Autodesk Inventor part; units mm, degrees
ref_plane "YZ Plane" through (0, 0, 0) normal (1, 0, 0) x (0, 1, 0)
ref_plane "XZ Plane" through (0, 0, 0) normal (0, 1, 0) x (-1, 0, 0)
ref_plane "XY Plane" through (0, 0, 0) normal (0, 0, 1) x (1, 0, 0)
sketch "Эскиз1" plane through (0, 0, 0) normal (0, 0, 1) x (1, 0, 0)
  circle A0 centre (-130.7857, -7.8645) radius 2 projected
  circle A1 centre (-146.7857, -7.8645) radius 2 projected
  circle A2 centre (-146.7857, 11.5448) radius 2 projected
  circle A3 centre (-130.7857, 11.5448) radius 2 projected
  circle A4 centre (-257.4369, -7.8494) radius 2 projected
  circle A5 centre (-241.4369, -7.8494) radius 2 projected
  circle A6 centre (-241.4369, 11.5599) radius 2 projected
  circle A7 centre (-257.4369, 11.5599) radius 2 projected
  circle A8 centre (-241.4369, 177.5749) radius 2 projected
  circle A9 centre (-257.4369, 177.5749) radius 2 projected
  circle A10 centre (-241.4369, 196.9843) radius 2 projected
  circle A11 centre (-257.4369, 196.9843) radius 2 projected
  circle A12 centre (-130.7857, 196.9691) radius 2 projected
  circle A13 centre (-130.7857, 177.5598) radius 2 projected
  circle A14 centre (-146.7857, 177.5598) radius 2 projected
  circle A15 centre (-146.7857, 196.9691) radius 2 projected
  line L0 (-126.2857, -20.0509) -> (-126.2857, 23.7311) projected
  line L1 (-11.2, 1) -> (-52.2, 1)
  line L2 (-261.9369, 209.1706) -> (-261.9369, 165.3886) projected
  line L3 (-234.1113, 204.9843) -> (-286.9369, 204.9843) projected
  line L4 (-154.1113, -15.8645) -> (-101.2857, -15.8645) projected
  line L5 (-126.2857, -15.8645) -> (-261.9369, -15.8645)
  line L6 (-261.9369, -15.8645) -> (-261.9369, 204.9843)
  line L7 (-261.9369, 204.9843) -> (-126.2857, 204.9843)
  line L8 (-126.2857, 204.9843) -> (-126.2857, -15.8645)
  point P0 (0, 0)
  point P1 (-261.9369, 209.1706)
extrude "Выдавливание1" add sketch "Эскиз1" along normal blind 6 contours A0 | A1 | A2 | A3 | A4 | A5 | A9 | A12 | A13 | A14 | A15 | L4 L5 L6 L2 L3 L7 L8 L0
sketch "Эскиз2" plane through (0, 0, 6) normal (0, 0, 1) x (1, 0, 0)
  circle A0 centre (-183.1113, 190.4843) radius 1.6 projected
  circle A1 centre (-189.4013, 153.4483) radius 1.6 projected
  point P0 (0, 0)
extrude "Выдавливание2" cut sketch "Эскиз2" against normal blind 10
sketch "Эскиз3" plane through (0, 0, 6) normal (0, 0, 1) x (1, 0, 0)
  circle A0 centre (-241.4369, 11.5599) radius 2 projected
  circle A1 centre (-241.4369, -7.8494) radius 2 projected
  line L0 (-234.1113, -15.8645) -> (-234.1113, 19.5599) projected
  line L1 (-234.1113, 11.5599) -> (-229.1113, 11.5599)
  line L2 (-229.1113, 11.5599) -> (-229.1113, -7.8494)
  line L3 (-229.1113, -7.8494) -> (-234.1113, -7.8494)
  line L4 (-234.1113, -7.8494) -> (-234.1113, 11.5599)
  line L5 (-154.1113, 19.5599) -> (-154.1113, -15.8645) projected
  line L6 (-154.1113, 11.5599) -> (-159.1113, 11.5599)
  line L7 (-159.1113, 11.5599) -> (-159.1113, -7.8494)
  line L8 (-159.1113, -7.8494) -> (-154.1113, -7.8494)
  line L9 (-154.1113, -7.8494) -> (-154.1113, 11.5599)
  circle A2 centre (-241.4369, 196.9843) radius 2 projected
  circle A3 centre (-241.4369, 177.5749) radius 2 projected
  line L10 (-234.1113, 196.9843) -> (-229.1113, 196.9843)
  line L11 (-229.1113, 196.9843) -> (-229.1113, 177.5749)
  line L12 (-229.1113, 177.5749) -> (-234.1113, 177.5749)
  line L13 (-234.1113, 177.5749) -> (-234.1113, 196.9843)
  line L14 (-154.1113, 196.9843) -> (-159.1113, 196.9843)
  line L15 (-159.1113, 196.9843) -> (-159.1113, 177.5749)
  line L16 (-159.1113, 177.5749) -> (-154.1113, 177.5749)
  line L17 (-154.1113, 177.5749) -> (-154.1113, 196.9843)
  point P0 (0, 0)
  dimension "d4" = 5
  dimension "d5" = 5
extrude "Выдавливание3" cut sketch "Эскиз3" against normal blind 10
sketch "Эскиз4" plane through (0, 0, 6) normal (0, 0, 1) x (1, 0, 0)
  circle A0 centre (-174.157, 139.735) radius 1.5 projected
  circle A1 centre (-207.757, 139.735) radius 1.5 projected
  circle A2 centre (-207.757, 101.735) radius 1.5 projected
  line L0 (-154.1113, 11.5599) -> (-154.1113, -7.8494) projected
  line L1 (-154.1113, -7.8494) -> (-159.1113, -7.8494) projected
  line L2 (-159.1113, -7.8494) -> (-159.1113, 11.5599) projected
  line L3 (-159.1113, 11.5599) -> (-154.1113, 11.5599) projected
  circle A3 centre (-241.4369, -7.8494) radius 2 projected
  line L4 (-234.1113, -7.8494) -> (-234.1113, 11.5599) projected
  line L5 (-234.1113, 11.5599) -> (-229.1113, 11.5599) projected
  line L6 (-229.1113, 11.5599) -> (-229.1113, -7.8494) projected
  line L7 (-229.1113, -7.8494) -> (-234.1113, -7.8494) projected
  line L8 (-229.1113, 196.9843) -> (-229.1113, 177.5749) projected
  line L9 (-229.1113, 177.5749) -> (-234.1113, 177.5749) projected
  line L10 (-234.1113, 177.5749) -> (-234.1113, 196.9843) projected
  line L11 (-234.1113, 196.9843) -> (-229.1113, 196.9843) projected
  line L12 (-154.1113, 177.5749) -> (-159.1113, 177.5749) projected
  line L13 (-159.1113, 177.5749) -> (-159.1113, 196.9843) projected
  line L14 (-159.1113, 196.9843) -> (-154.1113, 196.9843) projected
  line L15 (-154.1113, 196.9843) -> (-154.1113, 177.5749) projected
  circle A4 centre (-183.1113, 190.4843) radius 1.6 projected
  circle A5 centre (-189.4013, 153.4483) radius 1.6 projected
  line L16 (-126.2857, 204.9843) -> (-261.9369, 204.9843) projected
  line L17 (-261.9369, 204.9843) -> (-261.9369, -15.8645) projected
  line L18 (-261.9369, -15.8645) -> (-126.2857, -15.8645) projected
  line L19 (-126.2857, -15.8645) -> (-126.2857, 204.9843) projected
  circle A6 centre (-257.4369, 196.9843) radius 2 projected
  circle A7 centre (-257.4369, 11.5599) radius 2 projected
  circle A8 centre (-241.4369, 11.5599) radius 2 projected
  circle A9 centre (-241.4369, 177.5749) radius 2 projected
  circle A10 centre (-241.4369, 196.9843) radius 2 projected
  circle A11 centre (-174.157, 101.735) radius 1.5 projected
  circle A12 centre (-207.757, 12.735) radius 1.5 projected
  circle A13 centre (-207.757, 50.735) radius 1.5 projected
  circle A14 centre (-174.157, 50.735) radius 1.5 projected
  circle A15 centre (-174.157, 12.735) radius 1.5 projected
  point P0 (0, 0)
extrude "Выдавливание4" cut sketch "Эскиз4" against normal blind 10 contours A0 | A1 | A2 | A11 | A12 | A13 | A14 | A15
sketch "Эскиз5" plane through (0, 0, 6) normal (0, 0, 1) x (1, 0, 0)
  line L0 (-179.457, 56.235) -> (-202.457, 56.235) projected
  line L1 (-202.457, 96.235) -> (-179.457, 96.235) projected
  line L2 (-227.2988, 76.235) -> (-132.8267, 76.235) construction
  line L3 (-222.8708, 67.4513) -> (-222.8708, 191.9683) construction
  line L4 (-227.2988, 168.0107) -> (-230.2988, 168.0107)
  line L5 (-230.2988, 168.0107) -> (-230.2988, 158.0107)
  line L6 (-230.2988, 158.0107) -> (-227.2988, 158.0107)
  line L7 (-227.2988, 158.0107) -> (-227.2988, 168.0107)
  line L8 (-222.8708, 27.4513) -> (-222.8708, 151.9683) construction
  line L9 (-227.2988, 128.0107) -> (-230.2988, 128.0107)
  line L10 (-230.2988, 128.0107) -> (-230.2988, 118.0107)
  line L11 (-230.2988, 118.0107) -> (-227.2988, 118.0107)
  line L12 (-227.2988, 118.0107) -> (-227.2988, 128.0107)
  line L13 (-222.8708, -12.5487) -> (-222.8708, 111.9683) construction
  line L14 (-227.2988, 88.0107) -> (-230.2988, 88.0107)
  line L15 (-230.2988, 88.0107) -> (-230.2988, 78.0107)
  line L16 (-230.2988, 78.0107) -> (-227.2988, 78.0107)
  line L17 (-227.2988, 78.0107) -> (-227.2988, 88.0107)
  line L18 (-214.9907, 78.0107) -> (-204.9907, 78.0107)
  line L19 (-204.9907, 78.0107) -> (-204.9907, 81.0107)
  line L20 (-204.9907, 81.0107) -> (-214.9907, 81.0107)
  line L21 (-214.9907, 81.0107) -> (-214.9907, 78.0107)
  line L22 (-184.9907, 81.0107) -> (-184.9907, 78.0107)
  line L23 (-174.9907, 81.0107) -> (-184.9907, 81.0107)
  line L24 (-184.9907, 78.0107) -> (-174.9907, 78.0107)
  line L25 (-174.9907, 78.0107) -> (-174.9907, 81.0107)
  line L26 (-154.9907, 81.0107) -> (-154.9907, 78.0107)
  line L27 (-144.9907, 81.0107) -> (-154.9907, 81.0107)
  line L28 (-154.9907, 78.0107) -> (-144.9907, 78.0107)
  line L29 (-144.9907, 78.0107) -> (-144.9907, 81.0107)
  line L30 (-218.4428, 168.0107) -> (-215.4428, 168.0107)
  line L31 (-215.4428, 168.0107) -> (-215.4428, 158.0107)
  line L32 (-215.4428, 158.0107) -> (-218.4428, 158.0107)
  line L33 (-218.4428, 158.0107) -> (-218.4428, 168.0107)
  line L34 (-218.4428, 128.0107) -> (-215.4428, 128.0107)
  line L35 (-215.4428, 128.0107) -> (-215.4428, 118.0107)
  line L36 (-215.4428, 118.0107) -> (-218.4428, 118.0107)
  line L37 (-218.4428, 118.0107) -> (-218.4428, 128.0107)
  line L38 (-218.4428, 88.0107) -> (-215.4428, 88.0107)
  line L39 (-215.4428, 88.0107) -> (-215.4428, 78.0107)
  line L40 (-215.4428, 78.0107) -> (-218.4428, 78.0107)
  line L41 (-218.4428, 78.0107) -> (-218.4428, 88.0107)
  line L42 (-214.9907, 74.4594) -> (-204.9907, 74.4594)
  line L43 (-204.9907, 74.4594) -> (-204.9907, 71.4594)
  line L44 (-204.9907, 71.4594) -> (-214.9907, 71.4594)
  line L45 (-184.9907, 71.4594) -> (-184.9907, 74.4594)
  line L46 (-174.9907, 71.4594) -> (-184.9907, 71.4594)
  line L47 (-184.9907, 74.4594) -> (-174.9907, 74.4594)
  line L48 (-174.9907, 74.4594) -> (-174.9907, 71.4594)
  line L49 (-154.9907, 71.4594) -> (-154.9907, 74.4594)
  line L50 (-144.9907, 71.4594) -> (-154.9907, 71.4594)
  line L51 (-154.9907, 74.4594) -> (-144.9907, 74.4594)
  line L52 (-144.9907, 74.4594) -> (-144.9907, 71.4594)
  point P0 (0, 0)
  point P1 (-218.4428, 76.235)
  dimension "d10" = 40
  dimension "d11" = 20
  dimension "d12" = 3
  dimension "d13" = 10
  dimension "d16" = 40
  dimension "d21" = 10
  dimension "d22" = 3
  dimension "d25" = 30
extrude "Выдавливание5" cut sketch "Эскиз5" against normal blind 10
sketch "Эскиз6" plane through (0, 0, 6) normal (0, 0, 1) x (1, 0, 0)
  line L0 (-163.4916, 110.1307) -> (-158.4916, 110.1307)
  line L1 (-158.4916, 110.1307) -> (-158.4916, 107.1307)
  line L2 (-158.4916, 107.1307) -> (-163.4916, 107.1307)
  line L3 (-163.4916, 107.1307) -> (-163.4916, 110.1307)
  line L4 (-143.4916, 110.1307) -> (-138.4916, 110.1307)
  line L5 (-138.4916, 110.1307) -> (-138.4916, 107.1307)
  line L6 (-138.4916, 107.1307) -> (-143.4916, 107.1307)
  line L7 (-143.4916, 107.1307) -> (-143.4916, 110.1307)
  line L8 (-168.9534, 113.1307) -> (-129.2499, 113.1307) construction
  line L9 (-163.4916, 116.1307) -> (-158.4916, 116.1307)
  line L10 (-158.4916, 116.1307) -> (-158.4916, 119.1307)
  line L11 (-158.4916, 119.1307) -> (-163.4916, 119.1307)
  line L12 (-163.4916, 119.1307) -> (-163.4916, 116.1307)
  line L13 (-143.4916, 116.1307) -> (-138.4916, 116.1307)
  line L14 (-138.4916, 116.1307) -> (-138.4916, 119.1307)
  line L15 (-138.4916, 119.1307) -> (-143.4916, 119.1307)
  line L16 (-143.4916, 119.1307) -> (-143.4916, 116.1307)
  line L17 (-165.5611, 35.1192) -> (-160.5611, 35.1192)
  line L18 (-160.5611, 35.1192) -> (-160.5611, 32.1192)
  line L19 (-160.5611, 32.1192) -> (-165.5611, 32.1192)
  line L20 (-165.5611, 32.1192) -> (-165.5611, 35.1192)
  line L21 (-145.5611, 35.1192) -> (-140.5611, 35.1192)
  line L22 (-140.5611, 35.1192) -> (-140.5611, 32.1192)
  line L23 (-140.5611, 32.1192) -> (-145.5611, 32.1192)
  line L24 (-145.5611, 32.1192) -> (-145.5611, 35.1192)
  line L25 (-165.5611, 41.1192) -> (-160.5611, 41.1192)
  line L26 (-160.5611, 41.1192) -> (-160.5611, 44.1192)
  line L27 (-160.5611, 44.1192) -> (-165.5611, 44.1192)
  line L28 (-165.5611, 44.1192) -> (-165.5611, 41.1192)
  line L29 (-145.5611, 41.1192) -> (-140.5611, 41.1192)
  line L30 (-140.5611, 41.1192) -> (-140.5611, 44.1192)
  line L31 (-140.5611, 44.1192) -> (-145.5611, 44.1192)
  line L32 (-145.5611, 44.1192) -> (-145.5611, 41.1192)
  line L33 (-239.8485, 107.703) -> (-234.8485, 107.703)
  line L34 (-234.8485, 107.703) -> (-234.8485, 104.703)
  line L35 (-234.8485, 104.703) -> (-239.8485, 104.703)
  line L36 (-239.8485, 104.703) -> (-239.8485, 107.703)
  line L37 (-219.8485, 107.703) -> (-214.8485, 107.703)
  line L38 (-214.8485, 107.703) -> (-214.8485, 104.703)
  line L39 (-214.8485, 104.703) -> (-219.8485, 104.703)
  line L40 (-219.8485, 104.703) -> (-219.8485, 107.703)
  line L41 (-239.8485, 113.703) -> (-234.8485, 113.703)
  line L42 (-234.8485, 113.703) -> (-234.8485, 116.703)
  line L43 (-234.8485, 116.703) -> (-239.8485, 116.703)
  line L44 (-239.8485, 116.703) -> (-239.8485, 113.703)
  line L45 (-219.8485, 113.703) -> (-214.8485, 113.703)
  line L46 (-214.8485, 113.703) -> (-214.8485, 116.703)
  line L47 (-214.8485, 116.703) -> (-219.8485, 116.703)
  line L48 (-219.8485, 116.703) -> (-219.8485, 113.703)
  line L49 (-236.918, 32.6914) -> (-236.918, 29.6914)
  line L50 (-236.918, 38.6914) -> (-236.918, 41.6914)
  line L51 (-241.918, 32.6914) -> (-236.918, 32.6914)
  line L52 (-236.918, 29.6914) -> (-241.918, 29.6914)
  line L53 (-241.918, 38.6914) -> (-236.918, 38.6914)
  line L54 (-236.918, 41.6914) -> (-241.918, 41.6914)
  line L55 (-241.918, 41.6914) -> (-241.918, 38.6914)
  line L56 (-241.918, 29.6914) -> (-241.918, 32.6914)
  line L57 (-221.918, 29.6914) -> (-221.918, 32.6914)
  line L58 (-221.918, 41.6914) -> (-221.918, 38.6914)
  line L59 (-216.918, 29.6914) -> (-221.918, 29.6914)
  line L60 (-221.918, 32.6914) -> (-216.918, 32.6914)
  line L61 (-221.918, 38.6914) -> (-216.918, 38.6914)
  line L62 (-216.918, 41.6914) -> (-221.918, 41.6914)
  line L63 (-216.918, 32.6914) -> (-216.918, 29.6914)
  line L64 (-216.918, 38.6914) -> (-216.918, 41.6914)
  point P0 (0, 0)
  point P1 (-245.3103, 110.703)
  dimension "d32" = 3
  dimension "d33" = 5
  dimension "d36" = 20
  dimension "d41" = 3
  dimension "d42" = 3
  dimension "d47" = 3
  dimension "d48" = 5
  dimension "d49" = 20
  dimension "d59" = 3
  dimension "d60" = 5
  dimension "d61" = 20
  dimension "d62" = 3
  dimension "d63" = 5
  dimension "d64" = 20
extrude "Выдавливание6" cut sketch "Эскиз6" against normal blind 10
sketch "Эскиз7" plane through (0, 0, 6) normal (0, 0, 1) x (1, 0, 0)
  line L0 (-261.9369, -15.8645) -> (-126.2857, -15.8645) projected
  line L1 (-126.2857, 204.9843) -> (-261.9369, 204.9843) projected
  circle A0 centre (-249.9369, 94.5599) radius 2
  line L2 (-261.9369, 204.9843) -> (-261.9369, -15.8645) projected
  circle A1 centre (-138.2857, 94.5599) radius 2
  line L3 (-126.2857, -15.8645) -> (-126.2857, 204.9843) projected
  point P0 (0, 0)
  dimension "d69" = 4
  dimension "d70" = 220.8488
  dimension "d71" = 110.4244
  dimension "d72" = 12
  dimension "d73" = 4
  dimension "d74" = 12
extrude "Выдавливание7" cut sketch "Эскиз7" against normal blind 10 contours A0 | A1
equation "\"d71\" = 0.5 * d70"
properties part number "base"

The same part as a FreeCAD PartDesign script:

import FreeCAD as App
import Part
import Sketcher
from FreeCAD import Vector
Q = App.Units.Quantity


def add_polygon(sketch, points):
    """Adds a closed chain of lines whose ends are joined by coincident constraints."""
    first, n = sketch.GeometryCount, len(points)
    for a, b in zip(points, points[1:] + points[:1]):
        sketch.addGeometry(Part.LineSegment(App.Vector(*a, 0), App.Vector(*b, 0)), False)
    for i in range(n):
        sketch.addConstraint(Sketcher.Constraint("Coincident", first + i, 2, first + (i + 1) % n, 1))

doc = App.newDocument("Part")
body = doc.addObject("PartDesign::Body", "Body")

# Sketch on XY plane
sketch1 = doc.addObject("Sketcher::SketchObject", "Sketch")
body.addObject(sketch1)
sketch1.AttachmentSupport = (doc.XY_Plane, [""])
sketch1.MapMode = "FlatFace"
add_polygon(sketch1, [(-126.3, -15.9), (-126.3, 205), (-261.9, 205), (-261.9, -15.9)])  # lines 0-3
sketch1.addGeometry(Part.Circle(Vector(-257.4, 11.6, 0), Vector(0, 0, 1), 2), False)  # 4
sketch1.addGeometry(Part.Circle(Vector(-241.4, 11.6, 0), Vector(0, 0, 1), 2), False)  # 5
sketch1.addGeometry(Part.Circle(Vector(-257.4, 197, 0), Vector(0, 0, 1), 2), False)  # 6
sketch1.addGeometry(Part.Circle(Vector(-241.4, 177.6, 0), Vector(0, 0, 1), 2), False)  # 7
sketch1.addGeometry(Part.Circle(Vector(-241.4, 197, 0), Vector(0, 0, 1), 2), False)  # 8
sketch1.addConstraint(Sketcher.Constraint("Vertical", 0))
sketch1.addConstraint(Sketcher.Constraint("Horizontal", 1))
sketch1.addConstraint(Sketcher.Constraint("Vertical", 2))
sketch1.addConstraint(Sketcher.Constraint("Horizontal", 3))
sketch1.addConstraint(Sketcher.Constraint("Equal", 4, 5))
sketch1.addConstraint(Sketcher.Constraint("Equal", 5, 6))
sketch1.addConstraint(Sketcher.Constraint("Equal", 6, 7))
sketch1.addConstraint(Sketcher.Constraint("Equal", 7, 8))
sketch1.addConstraint(Sketcher.Constraint("Horizontal", 4, 3, 5, 3))
sketch1.addConstraint(Sketcher.Constraint("Horizontal", 6, 3, 8, 3))
sketch1.addConstraint(Sketcher.Constraint("Vertical", 4, 3, 6, 3))
sketch1.addConstraint(Sketcher.Constraint("Vertical", 5, 3, 7, 3))
sketch1.addConstraint(Sketcher.Constraint("Vertical", 7, 3, 8, 3))
sketch1.addConstraint(Sketcher.Constraint("Diameter", 4, Q("4 mm")))
sketch1.addConstraint(Sketcher.Constraint("DistanceX", 4, 3, 5, 3, Q("16 mm")))
sketch1.addConstraint(Sketcher.Constraint("DistanceY", 8, 3, 0, 2, Q("8 mm")))
sketch1.addConstraint(Sketcher.Constraint("DistanceX", 1, 2, 6, 3, Q("4.5 mm")))
sketch1.addConstraint(Sketcher.Constraint("DistanceY", -1, 1, 4, 3, Q("11.56 mm")))
sketch1.addConstraint(Sketcher.Constraint("DistanceX", 1, 2, 1, 1, Q("135.6512 mm")))
sketch1.addConstraint(Sketcher.Constraint("DistanceY", 0, 1, 0, 2, Q("220.8488 mm")))
sketch1.addConstraint(Sketcher.Constraint("DistanceX", 4, 3, -1, 1, Q("257.437 mm")))
sketch1.addConstraint(Sketcher.Constraint("DistanceY", -1, 1, 7, 3, Q("177.575 mm")))
sketch1.addConstraint(Sketcher.Constraint("DistanceY", -1, 1, 6, 3, Q("196.9843 mm")))
pad1 = doc.addObject("PartDesign::Pad", "Pad")
body.addObject(pad1)
pad1.Profile = sketch1
pad1.Length = 6

# Sketch on XY plane
sketch2 = doc.addObject("Sketcher::SketchObject", "Sketch001")
body.addObject(sketch2)
sketch2.AttachmentSupport = (doc.XY_Plane, [""])
sketch2.MapMode = "FlatFace"
sketch2.AttachmentOffset = App.Placement(Vector(0, 0, 6), App.Rotation())
sketch2.addGeometry(Part.Circle(Vector(-183.1, 190.5, 0), Vector(0, 0, 1), 1.6), False)
sketch2.addGeometry(Part.Circle(Vector(-189.4, 153.4, 0), Vector(0, 0, 1), 1.6), False)
sketch2.addConstraint(Sketcher.Constraint("Equal", 0, 1))
sketch2.addConstraint(Sketcher.Constraint("Diameter", 0, Q("3.2 mm")))
sketch2.addConstraint(Sketcher.Constraint("DistanceX", 1, 3, 0, 3, Q("6.29 mm")))
sketch2.addConstraint(Sketcher.Constraint("DistanceY", 1, 3, 0, 3, Q("37.036 mm")))
sketch2.addConstraint(Sketcher.Constraint("DistanceX", 0, 3, -1, 1, Q("183.1113 mm")))
sketch2.addConstraint(Sketcher.Constraint("DistanceY", -1, 1, 0, 3, Q("190.4843 mm")))
pocket1 = doc.addObject("PartDesign::Pocket", "Pocket")
body.addObject(pocket1)
pocket1.Profile = sketch2
pocket1.Length = 10

# Sketch on XY plane
sketch3 = doc.addObject("Sketcher::SketchObject", "Sketch002")
body.addObject(sketch3)
sketch3.AttachmentSupport = (doc.XY_Plane, [""])
sketch3.MapMode = "FlatFace"
sketch3.AttachmentOffset = App.Placement(Vector(0, 0, 6), App.Rotation())
sketch3.addGeometry(Part.Circle(Vector(-241.4, 11.6, 0), Vector(0, 0, 1), 2), False)  # 0
sketch3.addGeometry(Part.Circle(Vector(-241.4, -7.8, 0), Vector(0, 0, 1), 2), False)  # 1
add_polygon(sketch3, [(-234.1, 11.6), (-234.1, -7.8), (-229.1, -7.8), (-229.1, 11.6)])  # lines 2-5
add_polygon(sketch3, [(-154.1, -7.8), (-154.1, 11.6), (-159.1, 11.6), (-159.1, -7.8)])  # lines 6-9
sketch3.addGeometry(Part.Circle(Vector(-241.4, 197, 0), Vector(0, 0, 1), 2), False)  # 10
sketch3.addGeometry(Part.Circle(Vector(-241.4, 177.6, 0), Vector(0, 0, 1), 2), False)  # 11
add_polygon(sketch3, [(-229.1, 197), (-234.1, 197), (-234.1, 177.6), (-229.1, 177.6)])  # lines 12-15
add_polygon(sketch3, [(-154.1, 177.6), (-154.1, 197), (-159.1, 197), (-159.1, 177.6)])  # lines 16-19
sketch3.addConstraint(Sketcher.Constraint("Vertical", 2))
sketch3.addConstraint(Sketcher.Constraint("Horizontal", 3))
sketch3.addConstraint(Sketcher.Constraint("Vertical", 4))
sketch3.addConstraint(Sketcher.Constraint("Horizontal", 5))
sketch3.addConstraint(Sketcher.Constraint("Vertical", 6))
sketch3.addConstraint(Sketcher.Constraint("Horizontal", 7))
sketch3.addConstraint(Sketcher.Constraint("Vertical", 8))
sketch3.addConstraint(Sketcher.Constraint("Horizontal", 9))
sketch3.addConstraint(Sketcher.Constraint("Horizontal", 12))
sketch3.addConstraint(Sketcher.Constraint("Vertical", 13))
sketch3.addConstraint(Sketcher.Constraint("Horizontal", 14))
sketch3.addConstraint(Sketcher.Constraint("Vertical", 15))
sketch3.addConstraint(Sketcher.Constraint("Vertical", 16))
sketch3.addConstraint(Sketcher.Constraint("Horizontal", 17))
sketch3.addConstraint(Sketcher.Constraint("Vertical", 18))
sketch3.addConstraint(Sketcher.Constraint("Horizontal", 19))
sketch3.addConstraint(Sketcher.Constraint("Equal", 0, 1))
sketch3.addConstraint(Sketcher.Constraint("Equal", 1, 10))
sketch3.addConstraint(Sketcher.Constraint("Equal", 10, 11))
sketch3.addConstraint(Sketcher.Constraint("Horizontal", 1, 3, 2, 2))
sketch3.addConstraint(Sketcher.Constraint("Horizontal", 0, 3, 4, 2))
sketch3.addConstraint(Sketcher.Constraint("Horizontal", 5, 2, 6, 2))
sketch3.addConstraint(Sketcher.Constraint("Horizontal", 3, 2, 8, 2))
sketch3.addConstraint(Sketcher.Constraint("Horizontal", 10, 3, 12, 2))
sketch3.addConstraint(Sketcher.Constraint("Horizontal", 11, 3, 13, 2))
sketch3.addConstraint(Sketcher.Constraint("Horizontal", 15, 2, 16, 2))
sketch3.addConstraint(Sketcher.Constraint("Horizontal", 14, 2, 18, 2))
sketch3.addConstraint(Sketcher.Constraint("Vertical", 0, 3, 1, 3))
sketch3.addConstraint(Sketcher.Constraint("Vertical", 1, 3, 10, 3))
sketch3.addConstraint(Sketcher.Constraint("Vertical", 10, 3, 11, 3))
sketch3.addConstraint(Sketcher.Constraint("Vertical", 5, 2, 12, 2))
sketch3.addConstraint(Sketcher.Constraint("Vertical", 4, 2, 14, 2))
sketch3.addConstraint(Sketcher.Constraint("Vertical", 9, 2, 16, 2))
sketch3.addConstraint(Sketcher.Constraint("Vertical", 8, 2, 17, 2))
sketch3.addConstraint(Sketcher.Constraint("Equal", 5, 7))
sketch3.addConstraint(Sketcher.Constraint("Equal", 8, 13))
sketch3.addConstraint(Sketcher.Constraint("DistanceX", 3, 1, 3, 2, Q("5 mm")))
sketch3.addConstraint(Sketcher.Constraint("Diameter", 0, Q("4 mm")))
sketch3.addConstraint(Sketcher.Constraint("DistanceX", 4, 2, 6, 2, Q("75 mm")))
sketch3.addConstraint(Sketcher.Constraint("DistanceY", -1, 1, 0, 3, Q("11.56 mm")))
sketch3.addConstraint(Sketcher.Constraint("DistanceY", 2, 2, 2, 1, Q("19.4093 mm")))
sketch3.addConstraint(Sketcher.Constraint("DistanceX", 0, 3, -1, 1, Q("241.437 mm")))
sketch3.addConstraint(Sketcher.Constraint("DistanceY", -1, 1, 11, 3, Q("177.575 mm")))
sketch3.addConstraint(Sketcher.Constraint("DistanceX", 2, 2, -1, 1, Q("234.1113 mm")))
pocket2 = doc.addObject("PartDesign::Pocket", "Pocket001")
body.addObject(pocket2)
pocket2.Profile = sketch3
pocket2.Length = 10

# Sketch on XY plane
sketch4 = doc.addObject("Sketcher::SketchObject", "Sketch003")
body.addObject(sketch4)
sketch4.AttachmentSupport = (doc.XY_Plane, [""])
sketch4.MapMode = "FlatFace"
sketch4.AttachmentOffset = App.Placement(Vector(0, 0, 6), App.Rotation())
sketch4.addGeometry(Part.Circle(Vector(-174.2, 139.7, 0), Vector(0, 0, 1), 1.5), False)
sketch4.addGeometry(Part.Circle(Vector(-207.8, 139.7, 0), Vector(0, 0, 1), 1.5), False)
sketch4.addGeometry(Part.Circle(Vector(-207.8, 101.7, 0), Vector(0, 0, 1), 1.5), False)
sketch4.addGeometry(Part.Circle(Vector(-174.2, 101.7, 0), Vector(0, 0, 1), 1.5), False)
sketch4.addGeometry(Part.Circle(Vector(-207.8, 12.7, 0), Vector(0, 0, 1), 1.5), False)
sketch4.addGeometry(Part.Circle(Vector(-207.8, 50.7, 0), Vector(0, 0, 1), 1.5), False)
sketch4.addGeometry(Part.Circle(Vector(-174.2, 50.7, 0), Vector(0, 0, 1), 1.5), False)
sketch4.addGeometry(Part.Circle(Vector(-174.2, 12.7, 0), Vector(0, 0, 1), 1.5), False)
sketch4.addConstraint(Sketcher.Constraint("Equal", 0, 1))
sketch4.addConstraint(Sketcher.Constraint("Equal", 1, 2))
sketch4.addConstraint(Sketcher.Constraint("Equal", 2, 3))
sketch4.addConstraint(Sketcher.Constraint("Equal", 3, 4))
sketch4.addConstraint(Sketcher.Constraint("Equal", 4, 5))
sketch4.addConstraint(Sketcher.Constraint("Equal", 5, 6))
sketch4.addConstraint(Sketcher.Constraint("Equal", 6, 7))
sketch4.addConstraint(Sketcher.Constraint("Horizontal", 0, 3, 1, 3))
sketch4.addConstraint(Sketcher.Constraint("Horizontal", 2, 3, 3, 3))
sketch4.addConstraint(Sketcher.Constraint("Horizontal", 5, 3, 6, 3))
sketch4.addConstraint(Sketcher.Constraint("Horizontal", 4, 3, 7, 3))
sketch4.addConstraint(Sketcher.Constraint("Vertical", 1, 3, 2, 3))
sketch4.addConstraint(Sketcher.Constraint("Vertical", 0, 3, 3, 3))
sketch4.addConstraint(Sketcher.Constraint("Vertical", 2, 3, 4, 3))
sketch4.addConstraint(Sketcher.Constraint("Vertical", 4, 3, 5, 3))
sketch4.addConstraint(Sketcher.Constraint("Vertical", 3, 3, 6, 3))
sketch4.addConstraint(Sketcher.Constraint("Vertical", 6, 3, 7, 3))
sketch4.addConstraint(Sketcher.Constraint("Diameter", 0, Q("3 mm")))
sketch4.addConstraint(Sketcher.Constraint("DistanceY", 2, 3, 1, 3, Q("38 mm")))
sketch4.addConstraint(Sketcher.Constraint("DistanceY", 4, 3, 2, 3, Q("89 mm")))
sketch4.addConstraint(Sketcher.Constraint("DistanceY", 4, 3, 5, 3, Q("38 mm")))
sketch4.addConstraint(Sketcher.Constraint("DistanceX", 1, 3, 0, 3, Q("33.6 mm")))
sketch4.addConstraint(Sketcher.Constraint("DistanceX", 0, 3, -1, 1, Q("174.157 mm")))
sketch4.addConstraint(Sketcher.Constraint("DistanceY", -1, 1, 0, 3, Q("139.735 mm")))
pocket3 = doc.addObject("PartDesign::Pocket", "Pocket002")
body.addObject(pocket3)
pocket3.Profile = sketch4
pocket3.Length = 10

# Sketch on XY plane
sketch5 = doc.addObject("Sketcher::SketchObject", "Sketch004")
body.addObject(sketch5)
sketch5.AttachmentSupport = (doc.XY_Plane, [""])
sketch5.MapMode = "FlatFace"
sketch5.AttachmentOffset = App.Placement(Vector(0, 0, 6), App.Rotation())
add_polygon(sketch5, [(-227.3, 158), (-227.3, 168), (-230.3, 168), (-230.3, 158)])  # lines 0-3
add_polygon(sketch5, [(-227.3, 118), (-227.3, 128), (-230.3, 128), (-230.3, 118)])  # lines 4-7
add_polygon(sketch5, [(-227.3, 78), (-227.3, 88), (-230.3, 88), (-230.3, 78)])  # lines 8-11
add_polygon(sketch5, [(-215, 81), (-215, 78), (-205, 78), (-205, 81)])  # lines 12-15
add_polygon(sketch5, [(-175, 81), (-185, 81), (-185, 78), (-175, 78)])  # lines 16-19
add_polygon(sketch5, [(-145, 81), (-155, 81), (-155, 78), (-145, 78)])  # lines 20-23
add_polygon(sketch5, [(-215.4, 168), (-218.4, 168), (-218.4, 158), (-215.4, 158)])  # lines 24-27
add_polygon(sketch5, [(-215.4, 128), (-218.4, 128), (-218.4, 118), (-215.4, 118)])  # lines 28-31
add_polygon(sketch5, [(-215.4, 88), (-218.4, 88), (-218.4, 78), (-215.4, 78)])  # lines 32-35
add_polygon(sketch5, [(-185, 74.5), (-185, 71.5), (-175, 71.5), (-175, 74.5)])  # lines 36-39
add_polygon(sketch5, [(-155, 74.5), (-155, 71.5), (-145, 71.5), (-145, 74.5)])  # lines 40-43
sketch5.addConstraint(Sketcher.Constraint("Vertical", 0))
sketch5.addConstraint(Sketcher.Constraint("Horizontal", 1))
sketch5.addConstraint(Sketcher.Constraint("Vertical", 2))
sketch5.addConstraint(Sketcher.Constraint("Horizontal", 3))
sketch5.addConstraint(Sketcher.Constraint("Vertical", 4))
sketch5.addConstraint(Sketcher.Constraint("Horizontal", 5))
sketch5.addConstraint(Sketcher.Constraint("Vertical", 6))
sketch5.addConstraint(Sketcher.Constraint("Horizontal", 7))
sketch5.addConstraint(Sketcher.Constraint("Vertical", 8))
sketch5.addConstraint(Sketcher.Constraint("Horizontal", 9))
sketch5.addConstraint(Sketcher.Constraint("Vertical", 10))
sketch5.addConstraint(Sketcher.Constraint("Horizontal", 11))
sketch5.addConstraint(Sketcher.Constraint("Vertical", 12))
sketch5.addConstraint(Sketcher.Constraint("Horizontal", 13))
sketch5.addConstraint(Sketcher.Constraint("Vertical", 14))
sketch5.addConstraint(Sketcher.Constraint("Horizontal", 15))
sketch5.addConstraint(Sketcher.Constraint("Horizontal", 16))
sketch5.addConstraint(Sketcher.Constraint("Vertical", 17))
sketch5.addConstraint(Sketcher.Constraint("Horizontal", 18))
sketch5.addConstraint(Sketcher.Constraint("Vertical", 19))
sketch5.addConstraint(Sketcher.Constraint("Horizontal", 20))
sketch5.addConstraint(Sketcher.Constraint("Vertical", 21))
sketch5.addConstraint(Sketcher.Constraint("Horizontal", 22))
sketch5.addConstraint(Sketcher.Constraint("Vertical", 23))
sketch5.addConstraint(Sketcher.Constraint("Horizontal", 24))
sketch5.addConstraint(Sketcher.Constraint("Vertical", 25))
sketch5.addConstraint(Sketcher.Constraint("Horizontal", 26))
sketch5.addConstraint(Sketcher.Constraint("Vertical", 27))
sketch5.addConstraint(Sketcher.Constraint("Horizontal", 28))
sketch5.addConstraint(Sketcher.Constraint("Vertical", 29))
sketch5.addConstraint(Sketcher.Constraint("Horizontal", 30))
sketch5.addConstraint(Sketcher.Constraint("Vertical", 31))
sketch5.addConstraint(Sketcher.Constraint("Horizontal", 32))
sketch5.addConstraint(Sketcher.Constraint("Vertical", 33))
sketch5.addConstraint(Sketcher.Constraint("Horizontal", 34))
sketch5.addConstraint(Sketcher.Constraint("Vertical", 35))
sketch5.addConstraint(Sketcher.Constraint("Vertical", 36))
sketch5.addConstraint(Sketcher.Constraint("Horizontal", 37))
sketch5.addConstraint(Sketcher.Constraint("Vertical", 38))
sketch5.addConstraint(Sketcher.Constraint("Horizontal", 39))
sketch5.addConstraint(Sketcher.Constraint("Vertical", 40))
sketch5.addConstraint(Sketcher.Constraint("Horizontal", 41))
sketch5.addConstraint(Sketcher.Constraint("Vertical", 42))
sketch5.addConstraint(Sketcher.Constraint("Horizontal", 43))
sketch5.addConstraint(Sketcher.Constraint("Horizontal", 11, 2, 12, 2))
sketch5.addConstraint(Sketcher.Constraint("Horizontal", 15, 2, 16, 2))
sketch5.addConstraint(Sketcher.Constraint("Horizontal", 13, 2, 17, 2))
sketch5.addConstraint(Sketcher.Constraint("Horizontal", 19, 2, 20, 2))
sketch5.addConstraint(Sketcher.Constraint("Horizontal", 18, 2, 21, 2))
sketch5.addConstraint(Sketcher.Constraint("Horizontal", 1, 2, 24, 2))
sketch5.addConstraint(Sketcher.Constraint("Horizontal", 3, 2, 25, 2))
sketch5.addConstraint(Sketcher.Constraint("Horizontal", 5, 2, 28, 2))
sketch5.addConstraint(Sketcher.Constraint("Horizontal", 7, 2, 29, 2))
sketch5.addConstraint(Sketcher.Constraint("Horizontal", 9, 2, 32, 2))
sketch5.addConstraint(Sketcher.Constraint("Horizontal", 22, 2, 33, 2))
sketch5.addConstraint(Sketcher.Constraint("Horizontal", 37, 2, 40, 2))
sketch5.addConstraint(Sketcher.Constraint("Horizontal", 39, 2, 42, 2))
sketch5.addConstraint(Sketcher.Constraint("Vertical", 3, 2, 4, 2))
sketch5.addConstraint(Sketcher.Constraint("Vertical", 2, 2, 5, 2))
sketch5.addConstraint(Sketcher.Constraint("Vertical", 7, 2, 8, 2))
sketch5.addConstraint(Sketcher.Constraint("Vertical", 6, 2, 9, 2))
sketch5.addConstraint(Sketcher.Constraint("Vertical", 25, 2, 28, 2))
sketch5.addConstraint(Sketcher.Constraint("Vertical", 27, 2, 30, 2))
sketch5.addConstraint(Sketcher.Constraint("Vertical", 29, 2, 32, 2))
sketch5.addConstraint(Sketcher.Constraint("Vertical", 31, 2, 34, 2))
sketch5.addConstraint(Sketcher.Constraint("Vertical", 17, 2, 36, 2))
sketch5.addConstraint(Sketcher.Constraint("Vertical", 19, 2, 37, 2))
sketch5.addConstraint(Sketcher.Constraint("Vertical", 21, 2, 40, 2))
sketch5.addConstraint(Sketcher.Constraint("Vertical", 23, 2, 41, 2))
sketch5.addConstraint(Sketcher.Constraint("Equal", 15, 16))
sketch5.addConstraint(Sketcher.Constraint("Equal", 18, 20))
sketch5.addConstraint(Sketcher.Constraint("Equal", 11, 24))
sketch5.addConstraint(Sketcher.Constraint("Equal", 43, 0))
sketch5.addConstraint(Sketcher.Constraint("Equal", 2, 4))
sketch5.addConstraint(Sketcher.Constraint("Equal", 6, 8))
sketch5.addConstraint(Sketcher.Constraint("Equal", 34, 12))
sketch5.addConstraint(Sketcher.Constraint("Equal", 23, 36))
sketch5.addConstraint(Sketcher.Constraint("DistanceX", 1, 2, 1, 1, Q("3 mm")))
sketch5.addConstraint(Sketcher.Constraint("DistanceX", 13, 1, 13, 2, Q("10 mm")))
sketch5.addConstraint(Sketcher.Constraint("DistanceY", 4, 2, 3, 2, Q("30 mm")))
sketch5.addConstraint(Sketcher.Constraint("DistanceY", 8, 2, 7, 2, Q("30 mm")))
sketch5.addConstraint(Sketcher.Constraint("DistanceX", 14, 2, 16, 2, Q("20 mm")))
sketch5.addConstraint(Sketcher.Constraint("DistanceX", 19, 2, 20, 2, Q("20 mm")))
sketch5.addConstraint(Sketcher.Constraint("DistanceX", 11, 2, 12, 2, Q("12.308 mm")))
sketch5.addConstraint(Sketcher.Constraint("DistanceX", 0, 2, 24, 2, Q("8.856 mm")))
sketch5.addConstraint(Sketcher.Constraint("DistanceX", 0, 2, -1, 1, Q("227.2988 mm")))
sketch5.addConstraint(Sketcher.Constraint("DistanceY", -1, 1, 0, 2, Q("168.0107 mm")))
sketch5.addConstraint(Sketcher.Constraint("DistanceY", -1, 1, 36, 2, Q("71.4594 mm")))
pocket4 = doc.addObject("PartDesign::Pocket", "Pocket003")
body.addObject(pocket4)
pocket4.Profile = sketch5
pocket4.Length = 10

# Sketch on XY plane
sketch6 = doc.addObject("Sketcher::SketchObject", "Sketch005")
body.addObject(sketch6)
sketch6.AttachmentSupport = (doc.XY_Plane, [""])
sketch6.MapMode = "FlatFace"
sketch6.AttachmentOffset = App.Placement(Vector(0, 0, 6), App.Rotation())
add_polygon(sketch6, [(-158.5, 110.1), (-163.5, 110.1), (-163.5, 107.1), (-158.5, 107.1)])  # lines 0-3
add_polygon(sketch6, [(-138.5, 110.1), (-143.5, 110.1), (-143.5, 107.1), (-138.5, 107.1)])  # lines 4-7
add_polygon(sketch6, [(-163.5, 119.1), (-163.5, 116.1), (-158.5, 116.1), (-158.5, 119.1)])  # lines 8-11
add_polygon(sketch6, [(-143.5, 119.1), (-143.5, 116.1), (-138.5, 116.1), (-138.5, 119.1)])  # lines 12-15
add_polygon(sketch6, [(-160.6, 35.1), (-165.6, 35.1), (-165.6, 32.1), (-160.6, 32.1)])  # lines 16-19
add_polygon(sketch6, [(-140.6, 35.1), (-145.6, 35.1), (-145.6, 32.1), (-140.6, 32.1)])  # lines 20-23
add_polygon(sketch6, [(-165.6, 44.1), (-165.6, 41.1), (-160.6, 41.1), (-160.6, 44.1)])  # lines 24-27
add_polygon(sketch6, [(-145.6, 44.1), (-145.6, 41.1), (-140.6, 41.1), (-140.6, 44.1)])  # lines 28-31
add_polygon(sketch6, [(-234.8, 107.7), (-239.8, 107.7), (-239.8, 104.7), (-234.8, 104.7)])  # lines 32-35
add_polygon(sketch6, [(-214.8, 107.7), (-219.8, 107.7), (-219.8, 104.7), (-214.8, 104.7)])  # lines 36-39
add_polygon(sketch6, [(-239.8, 116.7), (-239.8, 113.7), (-234.8, 113.7), (-234.8, 116.7)])  # lines 40-43
add_polygon(sketch6, [(-219.8, 116.7), (-219.8, 113.7), (-214.8, 113.7), (-214.8, 116.7)])  # lines 44-47
add_polygon(sketch6, [(-236.9, 29.7), (-236.9, 32.7), (-241.9, 32.7), (-241.9, 29.7)])  # lines 48-51
add_polygon(sketch6, [(-241.9, 38.7), (-236.9, 38.7), (-236.9, 41.7), (-241.9, 41.7)])  # lines 52-55
add_polygon(sketch6, [(-221.9, 32.7), (-221.9, 29.7), (-216.9, 29.7), (-216.9, 32.7)])  # lines 56-59
add_polygon(sketch6, [(-216.9, 41.7), (-221.9, 41.7), (-221.9, 38.7), (-216.9, 38.7)])  # lines 60-63
sketch6.addConstraint(Sketcher.Constraint("Horizontal", 0))
sketch6.addConstraint(Sketcher.Constraint("Vertical", 1))
sketch6.addConstraint(Sketcher.Constraint("Horizontal", 2))
sketch6.addConstraint(Sketcher.Constraint("Vertical", 3))
sketch6.addConstraint(Sketcher.Constraint("Horizontal", 4))
sketch6.addConstraint(Sketcher.Constraint("Vertical", 5))
sketch6.addConstraint(Sketcher.Constraint("Horizontal", 6))
sketch6.addConstraint(Sketcher.Constraint("Vertical", 7))
sketch6.addConstraint(Sketcher.Constraint("Vertical", 8))
sketch6.addConstraint(Sketcher.Constraint("Horizontal", 9))
sketch6.addConstraint(Sketcher.Constraint("Vertical", 10))
sketch6.addConstraint(Sketcher.Constraint("Horizontal", 11))
sketch6.addConstraint(Sketcher.Constraint("Vertical", 12))
sketch6.addConstraint(Sketcher.Constraint("Horizontal", 13))
sketch6.addConstraint(Sketcher.Constraint("Vertical", 14))
sketch6.addConstraint(Sketcher.Constraint("Horizontal", 15))
sketch6.addConstraint(Sketcher.Constraint("Horizontal", 16))
sketch6.addConstraint(Sketcher.Constraint("Vertical", 17))
sketch6.addConstraint(Sketcher.Constraint("Horizontal", 18))
sketch6.addConstraint(Sketcher.Constraint("Vertical", 19))
sketch6.addConstraint(Sketcher.Constraint("Horizontal", 20))
sketch6.addConstraint(Sketcher.Constraint("Vertical", 21))
sketch6.addConstraint(Sketcher.Constraint("Horizontal", 22))
sketch6.addConstraint(Sketcher.Constraint("Vertical", 23))
sketch6.addConstraint(Sketcher.Constraint("Vertical", 24))
sketch6.addConstraint(Sketcher.Constraint("Horizontal", 25))
sketch6.addConstraint(Sketcher.Constraint("Vertical", 26))
sketch6.addConstraint(Sketcher.Constraint("Horizontal", 27))
sketch6.addConstraint(Sketcher.Constraint("Vertical", 28))
sketch6.addConstraint(Sketcher.Constraint("Horizontal", 29))
sketch6.addConstraint(Sketcher.Constraint("Vertical", 30))
sketch6.addConstraint(Sketcher.Constraint("Horizontal", 31))
sketch6.addConstraint(Sketcher.Constraint("Horizontal", 32))
sketch6.addConstraint(Sketcher.Constraint("Vertical", 33))
sketch6.addConstraint(Sketcher.Constraint("Horizontal", 34))
sketch6.addConstraint(Sketcher.Constraint("Vertical", 35))
sketch6.addConstraint(Sketcher.Constraint("Horizontal", 36))
sketch6.addConstraint(Sketcher.Constraint("Vertical", 37))
sketch6.addConstraint(Sketcher.Constraint("Horizontal", 38))
sketch6.addConstraint(Sketcher.Constraint("Vertical", 39))
sketch6.addConstraint(Sketcher.Constraint("Vertical", 40))
sketch6.addConstraint(Sketcher.Constraint("Horizontal", 41))
sketch6.addConstraint(Sketcher.Constraint("Vertical", 42))
sketch6.addConstraint(Sketcher.Constraint("Horizontal", 43))
sketch6.addConstraint(Sketcher.Constraint("Vertical", 44))
sketch6.addConstraint(Sketcher.Constraint("Horizontal", 45))
sketch6.addConstraint(Sketcher.Constraint("Vertical", 46))
sketch6.addConstraint(Sketcher.Constraint("Horizontal", 47))
sketch6.addConstraint(Sketcher.Constraint("Vertical", 48))
sketch6.addConstraint(Sketcher.Constraint("Horizontal", 49))
sketch6.addConstraint(Sketcher.Constraint("Vertical", 50))
sketch6.addConstraint(Sketcher.Constraint("Horizontal", 51))
sketch6.addConstraint(Sketcher.Constraint("Horizontal", 52))
sketch6.addConstraint(Sketcher.Constraint("Vertical", 53))
sketch6.addConstraint(Sketcher.Constraint("Horizontal", 54))
sketch6.addConstraint(Sketcher.Constraint("Vertical", 55))
sketch6.addConstraint(Sketcher.Constraint("Vertical", 56))
sketch6.addConstraint(Sketcher.Constraint("Horizontal", 57))
sketch6.addConstraint(Sketcher.Constraint("Vertical", 58))
sketch6.addConstraint(Sketcher.Constraint("Horizontal", 59))
sketch6.addConstraint(Sketcher.Constraint("Horizontal", 60))
sketch6.addConstraint(Sketcher.Constraint("Vertical", 61))
sketch6.addConstraint(Sketcher.Constraint("Horizontal", 62))
sketch6.addConstraint(Sketcher.Constraint("Vertical", 63))
sketch6.addConstraint(Sketcher.Constraint("Horizontal", 3, 2, 4, 2))
sketch6.addConstraint(Sketcher.Constraint("Horizontal", 2, 2, 5, 2))
sketch6.addConstraint(Sketcher.Constraint("Horizontal", 9, 2, 12, 2))
sketch6.addConstraint(Sketcher.Constraint("Horizontal", 11, 2, 14, 2))
sketch6.addConstraint(Sketcher.Constraint("Horizontal", 19, 2, 20, 2))
sketch6.addConstraint(Sketcher.Constraint("Horizontal", 18, 2, 21, 2))
sketch6.addConstraint(Sketcher.Constraint("Horizontal", 25, 2, 28, 2))
sketch6.addConstraint(Sketcher.Constraint("Horizontal", 27, 2, 30, 2))
sketch6.addConstraint(Sketcher.Constraint("Horizontal", 35, 2, 36, 2))
sketch6.addConstraint(Sketcher.Constraint("Horizontal", 34, 2, 37, 2))
sketch6.addConstraint(Sketcher.Constraint("Horizontal", 41, 2, 44, 2))
sketch6.addConstraint(Sketcher.Constraint("Horizontal", 43, 2, 46, 2))
sketch6.addConstraint(Sketcher.Constraint("Horizontal", 51, 2, 56, 2))
sketch6.addConstraint(Sketcher.Constraint("Horizontal", 49, 2, 58, 2))
sketch6.addConstraint(Sketcher.Constraint("Horizontal", 54, 2, 60, 2))
sketch6.addConstraint(Sketcher.Constraint("Horizontal", 55, 2, 61, 2))
sketch6.addConstraint(Sketcher.Constraint("Vertical", 1, 2, 8, 2))
sketch6.addConstraint(Sketcher.Constraint("Vertical", 3, 2, 9, 2))
sketch6.addConstraint(Sketcher.Constraint("Vertical", 5, 2, 12, 2))
sketch6.addConstraint(Sketcher.Constraint("Vertical", 7, 2, 13, 2))
sketch6.addConstraint(Sketcher.Constraint("Vertical", 17, 2, 24, 2))
sketch6.addConstraint(Sketcher.Constraint("Vertical", 19, 2, 25, 2))
sketch6.addConstraint(Sketcher.Constraint("Vertical", 21, 2, 28, 2))
sketch6.addConstraint(Sketcher.Constraint("Vertical", 23, 2, 29, 2))
sketch6.addConstraint(Sketcher.Constraint("Vertical", 33, 2, 40, 2))
sketch6.addConstraint(Sketcher.Constraint("Vertical", 35, 2, 41, 2))
sketch6.addConstraint(Sketcher.Constraint("Vertical", 37, 2, 44, 2))
sketch6.addConstraint(Sketcher.Constraint("Vertical", 39, 2, 45, 2))
sketch6.addConstraint(Sketcher.Constraint("Vertical", 51, 2, 52, 2))
sketch6.addConstraint(Sketcher.Constraint("Vertical", 50, 2, 54, 2))
sketch6.addConstraint(Sketcher.Constraint("Vertical", 59, 2, 60, 2))
sketch6.addConstraint(Sketcher.Constraint("Vertical", 58, 2, 62, 2))
sketch6.addConstraint(Sketcher.Constraint("Equal", 2, 4))
sketch6.addConstraint(Sketcher.Constraint("Equal", 15, 16))
sketch6.addConstraint(Sketcher.Constraint("Equal", 18, 20))
sketch6.addConstraint(Sketcher.Constraint("Equal", 31, 32))
sketch6.addConstraint(Sketcher.Constraint("Equal", 34, 36))
sketch6.addConstraint(Sketcher.Constraint("Equal", 47, 49))
sketch6.addConstraint(Sketcher.Constraint("Equal", 54, 57))
sketch6.addConstraint(Sketcher.Constraint("Equal", 7, 8))
sketch6.addConstraint(Sketcher.Constraint("Equal", 14, 17))
sketch6.addConstraint(Sketcher.Constraint("Equal", 23, 24))
sketch6.addConstraint(Sketcher.Constraint("Equal", 30, 33))
sketch6.addConstraint(Sketcher.Constraint("Equal", 39, 40))
sketch6.addConstraint(Sketcher.Constraint("Equal", 46, 48))
sketch6.addConstraint(Sketcher.Constraint("Equal", 50, 53))
sketch6.addConstraint(Sketcher.Constraint("DistanceX", 0, 2, 0, 1, Q("5 mm")))
sketch6.addConstraint(Sketcher.Constraint("DistanceY", 1, 2, 1, 1, Q("3 mm")))
sketch6.addConstraint(Sketcher.Constraint("DistanceX", 16, 2, -1, 1, Q("165.561 mm")))
sketch6.addConstraint(Sketcher.Constraint("DistanceX", 20, 2, -1, 1, Q("145.561 mm")))
sketch6.addConstraint(Sketcher.Constraint("DistanceY", -1, 1, 32, 2, Q("107.703 mm")))
sketch6.addConstraint(Sketcher.Constraint("DistanceY", -1, 1, 40, 2, Q("113.703 mm")))
sketch6.addConstraint(Sketcher.Constraint("DistanceX", 48, 2, -1, 1, Q("236.918 mm")))
sketch6.addConstraint(Sketcher.Constraint("DistanceX", 56, 2, -1, 1, Q("221.918 mm")))
sketch6.addConstraint(Sketcher.Constraint("DistanceX", 0, 2, -1, 1, Q("163.4916 mm")))
sketch6.addConstraint(Sketcher.Constraint("DistanceY", -1, 1, 0, 2, Q("110.1307 mm")))
sketch6.addConstraint(Sketcher.Constraint("DistanceX", 4, 2, -1, 1, Q("143.4916 mm")))
sketch6.addConstraint(Sketcher.Constraint("DistanceY", -1, 1, 8, 2, Q("116.1307 mm")))
sketch6.addConstraint(Sketcher.Constraint("DistanceY", -1, 1, 16, 2, Q("35.1192 mm")))
sketch6.addConstraint(Sketcher.Constraint("DistanceY", -1, 1, 24, 2, Q("41.1192 mm")))
sketch6.addConstraint(Sketcher.Constraint("DistanceX", 32, 2, -1, 1, Q("239.8485 mm")))
sketch6.addConstraint(Sketcher.Constraint("DistanceX", 36, 2, -1, 1, Q("219.8485 mm")))
sketch6.addConstraint(Sketcher.Constraint("DistanceY", -1, 1, 48, 2, Q("32.6914 mm")))
sketch6.addConstraint(Sketcher.Constraint("DistanceY", -1, 1, 52, 2, Q("38.6914 mm")))
pocket5 = doc.addObject("PartDesign::Pocket", "Pocket004")
body.addObject(pocket5)
pocket5.Profile = sketch6
pocket5.Length = 10

# Sketch on XY plane
sketch7 = doc.addObject("Sketcher::SketchObject", "Sketch006")
body.addObject(sketch7)
sketch7.AttachmentSupport = (doc.XY_Plane, [""])
sketch7.MapMode = "FlatFace"
sketch7.AttachmentOffset = App.Placement(Vector(0, 0, 6), App.Rotation())
sketch7.addGeometry(Part.Circle(Vector(-249.9, 94.6, 0), Vector(0, 0, 1), 2), False)
sketch7.addGeometry(Part.Circle(Vector(-138.3, 94.6, 0), Vector(0, 0, 1), 2), False)
sketch7.addConstraint(Sketcher.Constraint("Equal", 0, 1))
sketch7.addConstraint(Sketcher.Constraint("Horizontal", 0, 3, 1, 3))
sketch7.addConstraint(Sketcher.Constraint("Diameter", 0, Q("4 mm")))
sketch7.addConstraint(Sketcher.Constraint("DistanceY", -1, 1, 0, 3, Q("94.56 mm")))
sketch7.addConstraint(Sketcher.Constraint("DistanceX", 0, 3, -1, 1, Q("249.937 mm")))
sketch7.addConstraint(Sketcher.Constraint("DistanceX", 1, 3, -1, 1, Q("138.2857 mm")))
pocket6 = doc.addObject("PartDesign::Pocket", "Pocket005")
body.addObject(pocket6)
pocket6.Profile = sketch7
pocket6.Length = 10

doc.recompute()
